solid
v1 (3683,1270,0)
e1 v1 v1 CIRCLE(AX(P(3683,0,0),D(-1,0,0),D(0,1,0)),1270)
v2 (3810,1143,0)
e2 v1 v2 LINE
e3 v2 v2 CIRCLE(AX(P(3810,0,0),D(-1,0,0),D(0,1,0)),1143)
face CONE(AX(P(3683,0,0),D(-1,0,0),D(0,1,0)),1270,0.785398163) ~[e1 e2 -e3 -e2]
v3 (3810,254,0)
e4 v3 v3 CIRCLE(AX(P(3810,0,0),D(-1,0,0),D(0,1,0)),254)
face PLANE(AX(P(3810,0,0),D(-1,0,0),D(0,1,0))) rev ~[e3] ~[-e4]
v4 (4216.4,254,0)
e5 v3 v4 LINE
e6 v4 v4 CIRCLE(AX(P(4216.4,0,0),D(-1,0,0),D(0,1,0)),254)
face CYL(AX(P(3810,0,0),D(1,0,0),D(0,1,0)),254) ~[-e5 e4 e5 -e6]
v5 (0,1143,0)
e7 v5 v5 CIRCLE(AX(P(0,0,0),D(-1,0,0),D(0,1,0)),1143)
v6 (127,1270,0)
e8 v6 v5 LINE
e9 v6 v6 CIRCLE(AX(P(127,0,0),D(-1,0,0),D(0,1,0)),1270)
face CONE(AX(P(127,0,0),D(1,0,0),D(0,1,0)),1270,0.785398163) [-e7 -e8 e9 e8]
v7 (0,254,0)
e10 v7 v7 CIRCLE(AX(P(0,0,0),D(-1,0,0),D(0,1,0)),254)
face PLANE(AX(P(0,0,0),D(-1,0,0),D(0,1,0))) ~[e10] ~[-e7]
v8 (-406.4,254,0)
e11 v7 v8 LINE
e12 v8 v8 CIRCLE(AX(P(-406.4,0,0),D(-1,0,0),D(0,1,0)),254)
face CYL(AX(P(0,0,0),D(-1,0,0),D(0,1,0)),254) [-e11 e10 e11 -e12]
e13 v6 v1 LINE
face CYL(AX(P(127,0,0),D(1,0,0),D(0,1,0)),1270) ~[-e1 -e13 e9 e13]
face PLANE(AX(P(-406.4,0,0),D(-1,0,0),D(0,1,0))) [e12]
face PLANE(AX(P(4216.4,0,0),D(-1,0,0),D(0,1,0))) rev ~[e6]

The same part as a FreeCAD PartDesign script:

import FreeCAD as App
import Part
import Sketcher
from FreeCAD import Vector
Q = App.Units.Quantity


def add_polygon(sketch, points):
    """Adds a closed chain of lines whose ends are joined by coincident constraints."""
    first, n = sketch.GeometryCount, len(points)
    for a, b in zip(points, points[1:] + points[:1]):
        sketch.addGeometry(Part.LineSegment(App.Vector(*a, 0), App.Vector(*b, 0)), False)
    for i in range(n):
        sketch.addConstraint(Sketcher.Constraint("Coincident", first + i, 2, first + (i + 1) % n, 1))

doc = App.newDocument("Part")
body = doc.addObject("PartDesign::Body", "Body")

sketch1 = body.newObject("Sketcher::SketchObject", "Sketch")
sketch1.AttachmentSupport = (doc.getObject("XY_Plane"), [""])
sketch1.MapMode = "FlatFace"
add_polygon(sketch1, [(-406, 0), (4216, 0), (4216, 254), (3810, 254), (3810, 1143), (3683, 1270), (127, 1270), (0, 1143), (0, 254), (-406, 254)])
sketch1.addConstraint([
    Sketcher.Constraint("Horizontal", 0),
    Sketcher.Constraint("Vertical", 1),
    Sketcher.Constraint("Horizontal", 2),
    Sketcher.Constraint("Vertical", 3),
    Sketcher.Constraint("Horizontal", 5),
    Sketcher.Constraint("Vertical", 7),
    Sketcher.Constraint("Horizontal", 8),
    Sketcher.Constraint("Vertical", 9),
    Sketcher.Constraint("PointOnObject", 0, 2, -1),
    Sketcher.Constraint("PointOnObject", 6, 2, -2),
    Sketcher.Constraint("Perpendicular", 4, 6),
    Sketcher.Constraint("Horizontal", 3, 2, 6, 2),
    Sketcher.Constraint("Horizontal", 2, 2, 7, 2),
    Sketcher.Constraint("Equal", 2, 8),
    Sketcher.Constraint("Equal", 4, 6),
    Sketcher.Constraint("DistanceX", 2, 2, 2, 1, Q("16 in")),
    Sketcher.Constraint("DistanceY", 1, 1, 1, 2, Q("10 in")),
    Sketcher.Constraint("DistanceX", -1, 1, 2, 2, Q("150 in")),
    Sketcher.Constraint("DistanceY", -1, 1, 4, 2, Q("50 in")),
    Sketcher.Constraint("DistanceX", -1, 1, 5, 2, Q("5 in")),
])
revolution = body.newObject("PartDesign::Revolution", "Revolution")
revolution.Profile = sketch1
revolution.ReferenceAxis = (sketch1, ["H_Axis"])
revolution.Angle = 360

doc.recompute()
